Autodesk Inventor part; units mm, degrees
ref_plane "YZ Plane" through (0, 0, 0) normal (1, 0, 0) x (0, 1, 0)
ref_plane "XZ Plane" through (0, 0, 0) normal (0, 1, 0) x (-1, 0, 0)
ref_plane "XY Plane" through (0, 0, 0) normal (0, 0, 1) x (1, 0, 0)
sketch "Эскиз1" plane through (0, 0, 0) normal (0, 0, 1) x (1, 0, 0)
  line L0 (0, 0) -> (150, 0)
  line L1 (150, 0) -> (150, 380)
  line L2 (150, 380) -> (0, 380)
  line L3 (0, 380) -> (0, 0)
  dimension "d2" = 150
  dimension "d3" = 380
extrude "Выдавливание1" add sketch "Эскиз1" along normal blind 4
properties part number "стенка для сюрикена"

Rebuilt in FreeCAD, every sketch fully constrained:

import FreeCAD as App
import Part
import Sketcher

V = App.Vector
Q = App.Units.Quantity


def add_polygon(sketch, points):
    """Adds a closed chain of lines whose ends are joined by coincident constraints."""
    first, n = sketch.GeometryCount, len(points)
    for a, b in zip(points, points[1:] + points[:1]):
        sketch.addGeometry(Part.LineSegment(App.Vector(*a, 0), App.Vector(*b, 0)), False)
    for i in range(n):
        sketch.addConstraint(Sketcher.Constraint("Coincident", first + i, 2, first + (i + 1) % n, 1))

doc = App.newDocument("Part")
body = doc.addObject("PartDesign::Body", "Body")

# Sketch on XY plane
sketch1 = body.newObject("Sketcher::SketchObject", "Sketch")
sketch1.AttachmentSupport = (doc.getObject("XY_Plane"), [""])
sketch1.MapMode = "FlatFace"
add_polygon(sketch1, [(0, 380), (0, 0), (150, 0), (150, 380)])  # lines 0-3
sketch1.addConstraint(Sketcher.Constraint("Vertical", 0))
sketch1.addConstraint(Sketcher.Constraint("Horizontal", 1))
sketch1.addConstraint(Sketcher.Constraint("Vertical", 2))
sketch1.addConstraint(Sketcher.Constraint("Horizontal", 3))
sketch1.addConstraint(Sketcher.Constraint("Coincident", 0, 2, -1, 1))
sketch1.addConstraint(Sketcher.Constraint("DistanceX", 1, 1, 1, 2, Q("150 mm")))
sketch1.addConstraint(Sketcher.Constraint("DistanceY", 0, 2, 0, 1, Q("380 mm")))
pad1 = body.newObject("PartDesign::Pad", "Pad")
pad1.Profile = sketch1
pad1.Length = 4

doc.recompute()
